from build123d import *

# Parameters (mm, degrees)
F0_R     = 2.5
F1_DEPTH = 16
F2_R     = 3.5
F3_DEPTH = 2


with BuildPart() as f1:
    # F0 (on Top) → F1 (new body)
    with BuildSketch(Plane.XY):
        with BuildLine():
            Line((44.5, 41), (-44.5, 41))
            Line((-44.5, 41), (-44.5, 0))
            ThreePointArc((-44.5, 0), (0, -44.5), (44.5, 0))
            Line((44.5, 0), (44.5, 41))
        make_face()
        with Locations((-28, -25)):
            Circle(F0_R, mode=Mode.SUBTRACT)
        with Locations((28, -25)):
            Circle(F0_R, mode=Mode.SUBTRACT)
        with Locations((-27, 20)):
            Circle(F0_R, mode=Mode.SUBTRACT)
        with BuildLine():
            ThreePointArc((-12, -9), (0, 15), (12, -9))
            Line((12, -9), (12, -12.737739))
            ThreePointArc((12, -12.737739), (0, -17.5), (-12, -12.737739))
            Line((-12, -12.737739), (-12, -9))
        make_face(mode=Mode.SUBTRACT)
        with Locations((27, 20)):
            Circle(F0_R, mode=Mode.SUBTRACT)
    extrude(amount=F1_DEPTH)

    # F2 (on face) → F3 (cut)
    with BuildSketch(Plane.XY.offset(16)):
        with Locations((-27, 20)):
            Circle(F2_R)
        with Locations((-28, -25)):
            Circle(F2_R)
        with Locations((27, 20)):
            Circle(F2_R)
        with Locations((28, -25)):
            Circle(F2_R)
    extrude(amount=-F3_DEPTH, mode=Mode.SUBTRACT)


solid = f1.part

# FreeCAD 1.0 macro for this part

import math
import FreeCAD as App
import Part
import Sketcher

V = App.Vector
Q = App.Units.Quantity

doc = App.newDocument("Part")
body = doc.addObject("PartDesign::Body", "Body")

# Sketch on XY plane
sketch1 = body.newObject("Sketcher::SketchObject", "Sketch")
sketch1.AttachmentSupport = (doc.getObject("XY_Plane"), [""])
sketch1.MapMode = "FlatFace"
sketch1.addGeometry([
    Part.LineSegment(V(44.5, 41, 0), V(-44.5, 41, 0)),  # 0
    Part.LineSegment(V(-44.5, 41, 0), V(-44.5, 0, 0)),  # 1
    Part.ArcOfCircle(Part.Circle(V(0, 0, 0), V(0, 0, 1), 44.5), math.radians(180), math.radians(360)),  # 2
    Part.LineSegment(V(44.5, 0, 0), V(44.5, 41, 0)),  # 3
    Part.Circle(V(-28, -25, 0), V(0, 0, 1), 2.5),  # 4
    Part.Circle(V(28, -25, 0), V(0, 0, 1), 2.5),  # 5
    Part.Circle(V(-27, 20, 0), V(0, 0, 1), 2.5),  # 6
    Part.LineSegment(V(-12, -12.7, 0), V(-12, -9, 0)),  # 7
    Part.ArcOfCircle(Part.Circle(V(0, 0, 0), V(0, 0, 1), 15), math.radians(-37), math.radians(217)),  # 8
    Part.LineSegment(V(12, -9, 0), V(12, -12.7, 0)),  # 9
    Part.ArcOfCircle(Part.Circle(V(0, 0, 0), V(0, 0, 1), 17.5), math.radians(-133), math.radians(-47)),  # 10
    Part.Circle(V(27, 20, 0), V(0, 0, 1), 2.5),  # 11
], False)
sketch1.addConstraint([
    Sketcher.Constraint("Coincident", 0, 2, 1, 1),
    Sketcher.Constraint("Tangent", 1, 2, 2, 1),
    Sketcher.Constraint("Tangent", 2, 2, 3, 1),
    Sketcher.Constraint("Coincident", 3, 2, 0, 1),
    Sketcher.Constraint("Coincident", 7, 2, 8, 2),
    Sketcher.Constraint("Coincident", 8, 1, 9, 1),
    Sketcher.Constraint("Coincident", 9, 2, 10, 2),
    Sketcher.Constraint("Coincident", 10, 1, 7, 1),
    Sketcher.Constraint("Horizontal", 0),
    Sketcher.Constraint("Vertical", 1),
    Sketcher.Constraint("Vertical", 3),
    Sketcher.Constraint("Vertical", 7),
    Sketcher.Constraint("Vertical", 9),
    Sketcher.Constraint("Coincident", 2, 3, -1, 1),
    Sketcher.Constraint("Coincident", 8, 3, -1, 1),
    Sketcher.Constraint("Coincident", 10, 3, -1, 1),
    Sketcher.Constraint("Equal", 4, 5),
    Sketcher.Constraint("Equal", 5, 6),
    Sketcher.Constraint("Equal", 6, 11),
    Sketcher.Constraint("Symmetric", 4, 3, 5, 3, -2),
    Sketcher.Constraint("Symmetric", 6, 3, 11, 3, -2),
    Sketcher.Constraint("Horizontal", 7, 2, 8, 1),
    Sketcher.Constraint("Diameter", 4, Q("5 mm")),
    Sketcher.Constraint("Radius", 8, Q("15 mm")),
    Sketcher.Constraint("Radius", 2, Q("44.5 mm")),
    Sketcher.Constraint("Radius", 10, Q("17.499999 mm")),
    Sketcher.Constraint("DistanceY", 1, 2, 1, 1, Q("41 mm")),
    Sketcher.Constraint("DistanceX", 4, 3, -1, 1, Q("28 mm")),
    Sketcher.Constraint("DistanceY", 4, 3, -1, 1, Q("25 mm")),
    Sketcher.Constraint("DistanceX", 6, 3, -1, 1, Q("27 mm")),
    Sketcher.Constraint("DistanceY", -1, 1, 6, 3, Q("20 mm")),
    Sketcher.Constraint("DistanceX", 7, 2, -1, 1, Q("12 mm")),
])
pad1 = body.newObject("PartDesign::Pad", "Pad")
pad1.Profile = sketch1
pad1.Length = 16

# Sketch on XY plane
sketch2 = body.newObject("Sketcher::SketchObject", "Sketch001")
sketch2.AttachmentSupport = (doc.getObject("XY_Plane"), [""])
sketch2.MapMode = "FlatFace"
sketch2.AttachmentOffset = App.Placement(V(0, 0, 16), App.Rotation())
sketch2.addGeometry([
    Part.Circle(V(-27, 20, 0), V(0, 0, 1), 3.5),
    Part.Circle(V(-28, -25, 0), V(0, 0, 1), 3.5),
    Part.Circle(V(27, 20, 0), V(0, 0, 1), 3.5),
    Part.Circle(V(28, -25, 0), V(0, 0, 1), 3.5),
], False)
sketch2.addConstraint([
    Sketcher.Constraint("Equal", 0, 1),
    Sketcher.Constraint("Equal", 1, 2),
    Sketcher.Constraint("Equal", 2, 3),
    Sketcher.Constraint("Symmetric", 0, 3, 2, 3, -2),
    Sketcher.Constraint("Symmetric", 1, 3, 3, 3, -2),
    Sketcher.Constraint("Diameter", 0, Q("7 mm")),
    Sketcher.Constraint("DistanceX", 0, 3, -1, 1, Q("27 mm")),
    Sketcher.Constraint("DistanceY", -1, 1, 0, 3, Q("20 mm")),
    Sketcher.Constraint("DistanceX", 1, 3, -1, 1, Q("28 mm")),
    Sketcher.Constraint("DistanceY", 1, 3, -1, 1, Q("25 mm")),
])
pocket1 = body.newObject("PartDesign::Pocket", "Pocket")
pocket1.Profile = sketch2
pocket1.Length = 2

doc.recompute()
